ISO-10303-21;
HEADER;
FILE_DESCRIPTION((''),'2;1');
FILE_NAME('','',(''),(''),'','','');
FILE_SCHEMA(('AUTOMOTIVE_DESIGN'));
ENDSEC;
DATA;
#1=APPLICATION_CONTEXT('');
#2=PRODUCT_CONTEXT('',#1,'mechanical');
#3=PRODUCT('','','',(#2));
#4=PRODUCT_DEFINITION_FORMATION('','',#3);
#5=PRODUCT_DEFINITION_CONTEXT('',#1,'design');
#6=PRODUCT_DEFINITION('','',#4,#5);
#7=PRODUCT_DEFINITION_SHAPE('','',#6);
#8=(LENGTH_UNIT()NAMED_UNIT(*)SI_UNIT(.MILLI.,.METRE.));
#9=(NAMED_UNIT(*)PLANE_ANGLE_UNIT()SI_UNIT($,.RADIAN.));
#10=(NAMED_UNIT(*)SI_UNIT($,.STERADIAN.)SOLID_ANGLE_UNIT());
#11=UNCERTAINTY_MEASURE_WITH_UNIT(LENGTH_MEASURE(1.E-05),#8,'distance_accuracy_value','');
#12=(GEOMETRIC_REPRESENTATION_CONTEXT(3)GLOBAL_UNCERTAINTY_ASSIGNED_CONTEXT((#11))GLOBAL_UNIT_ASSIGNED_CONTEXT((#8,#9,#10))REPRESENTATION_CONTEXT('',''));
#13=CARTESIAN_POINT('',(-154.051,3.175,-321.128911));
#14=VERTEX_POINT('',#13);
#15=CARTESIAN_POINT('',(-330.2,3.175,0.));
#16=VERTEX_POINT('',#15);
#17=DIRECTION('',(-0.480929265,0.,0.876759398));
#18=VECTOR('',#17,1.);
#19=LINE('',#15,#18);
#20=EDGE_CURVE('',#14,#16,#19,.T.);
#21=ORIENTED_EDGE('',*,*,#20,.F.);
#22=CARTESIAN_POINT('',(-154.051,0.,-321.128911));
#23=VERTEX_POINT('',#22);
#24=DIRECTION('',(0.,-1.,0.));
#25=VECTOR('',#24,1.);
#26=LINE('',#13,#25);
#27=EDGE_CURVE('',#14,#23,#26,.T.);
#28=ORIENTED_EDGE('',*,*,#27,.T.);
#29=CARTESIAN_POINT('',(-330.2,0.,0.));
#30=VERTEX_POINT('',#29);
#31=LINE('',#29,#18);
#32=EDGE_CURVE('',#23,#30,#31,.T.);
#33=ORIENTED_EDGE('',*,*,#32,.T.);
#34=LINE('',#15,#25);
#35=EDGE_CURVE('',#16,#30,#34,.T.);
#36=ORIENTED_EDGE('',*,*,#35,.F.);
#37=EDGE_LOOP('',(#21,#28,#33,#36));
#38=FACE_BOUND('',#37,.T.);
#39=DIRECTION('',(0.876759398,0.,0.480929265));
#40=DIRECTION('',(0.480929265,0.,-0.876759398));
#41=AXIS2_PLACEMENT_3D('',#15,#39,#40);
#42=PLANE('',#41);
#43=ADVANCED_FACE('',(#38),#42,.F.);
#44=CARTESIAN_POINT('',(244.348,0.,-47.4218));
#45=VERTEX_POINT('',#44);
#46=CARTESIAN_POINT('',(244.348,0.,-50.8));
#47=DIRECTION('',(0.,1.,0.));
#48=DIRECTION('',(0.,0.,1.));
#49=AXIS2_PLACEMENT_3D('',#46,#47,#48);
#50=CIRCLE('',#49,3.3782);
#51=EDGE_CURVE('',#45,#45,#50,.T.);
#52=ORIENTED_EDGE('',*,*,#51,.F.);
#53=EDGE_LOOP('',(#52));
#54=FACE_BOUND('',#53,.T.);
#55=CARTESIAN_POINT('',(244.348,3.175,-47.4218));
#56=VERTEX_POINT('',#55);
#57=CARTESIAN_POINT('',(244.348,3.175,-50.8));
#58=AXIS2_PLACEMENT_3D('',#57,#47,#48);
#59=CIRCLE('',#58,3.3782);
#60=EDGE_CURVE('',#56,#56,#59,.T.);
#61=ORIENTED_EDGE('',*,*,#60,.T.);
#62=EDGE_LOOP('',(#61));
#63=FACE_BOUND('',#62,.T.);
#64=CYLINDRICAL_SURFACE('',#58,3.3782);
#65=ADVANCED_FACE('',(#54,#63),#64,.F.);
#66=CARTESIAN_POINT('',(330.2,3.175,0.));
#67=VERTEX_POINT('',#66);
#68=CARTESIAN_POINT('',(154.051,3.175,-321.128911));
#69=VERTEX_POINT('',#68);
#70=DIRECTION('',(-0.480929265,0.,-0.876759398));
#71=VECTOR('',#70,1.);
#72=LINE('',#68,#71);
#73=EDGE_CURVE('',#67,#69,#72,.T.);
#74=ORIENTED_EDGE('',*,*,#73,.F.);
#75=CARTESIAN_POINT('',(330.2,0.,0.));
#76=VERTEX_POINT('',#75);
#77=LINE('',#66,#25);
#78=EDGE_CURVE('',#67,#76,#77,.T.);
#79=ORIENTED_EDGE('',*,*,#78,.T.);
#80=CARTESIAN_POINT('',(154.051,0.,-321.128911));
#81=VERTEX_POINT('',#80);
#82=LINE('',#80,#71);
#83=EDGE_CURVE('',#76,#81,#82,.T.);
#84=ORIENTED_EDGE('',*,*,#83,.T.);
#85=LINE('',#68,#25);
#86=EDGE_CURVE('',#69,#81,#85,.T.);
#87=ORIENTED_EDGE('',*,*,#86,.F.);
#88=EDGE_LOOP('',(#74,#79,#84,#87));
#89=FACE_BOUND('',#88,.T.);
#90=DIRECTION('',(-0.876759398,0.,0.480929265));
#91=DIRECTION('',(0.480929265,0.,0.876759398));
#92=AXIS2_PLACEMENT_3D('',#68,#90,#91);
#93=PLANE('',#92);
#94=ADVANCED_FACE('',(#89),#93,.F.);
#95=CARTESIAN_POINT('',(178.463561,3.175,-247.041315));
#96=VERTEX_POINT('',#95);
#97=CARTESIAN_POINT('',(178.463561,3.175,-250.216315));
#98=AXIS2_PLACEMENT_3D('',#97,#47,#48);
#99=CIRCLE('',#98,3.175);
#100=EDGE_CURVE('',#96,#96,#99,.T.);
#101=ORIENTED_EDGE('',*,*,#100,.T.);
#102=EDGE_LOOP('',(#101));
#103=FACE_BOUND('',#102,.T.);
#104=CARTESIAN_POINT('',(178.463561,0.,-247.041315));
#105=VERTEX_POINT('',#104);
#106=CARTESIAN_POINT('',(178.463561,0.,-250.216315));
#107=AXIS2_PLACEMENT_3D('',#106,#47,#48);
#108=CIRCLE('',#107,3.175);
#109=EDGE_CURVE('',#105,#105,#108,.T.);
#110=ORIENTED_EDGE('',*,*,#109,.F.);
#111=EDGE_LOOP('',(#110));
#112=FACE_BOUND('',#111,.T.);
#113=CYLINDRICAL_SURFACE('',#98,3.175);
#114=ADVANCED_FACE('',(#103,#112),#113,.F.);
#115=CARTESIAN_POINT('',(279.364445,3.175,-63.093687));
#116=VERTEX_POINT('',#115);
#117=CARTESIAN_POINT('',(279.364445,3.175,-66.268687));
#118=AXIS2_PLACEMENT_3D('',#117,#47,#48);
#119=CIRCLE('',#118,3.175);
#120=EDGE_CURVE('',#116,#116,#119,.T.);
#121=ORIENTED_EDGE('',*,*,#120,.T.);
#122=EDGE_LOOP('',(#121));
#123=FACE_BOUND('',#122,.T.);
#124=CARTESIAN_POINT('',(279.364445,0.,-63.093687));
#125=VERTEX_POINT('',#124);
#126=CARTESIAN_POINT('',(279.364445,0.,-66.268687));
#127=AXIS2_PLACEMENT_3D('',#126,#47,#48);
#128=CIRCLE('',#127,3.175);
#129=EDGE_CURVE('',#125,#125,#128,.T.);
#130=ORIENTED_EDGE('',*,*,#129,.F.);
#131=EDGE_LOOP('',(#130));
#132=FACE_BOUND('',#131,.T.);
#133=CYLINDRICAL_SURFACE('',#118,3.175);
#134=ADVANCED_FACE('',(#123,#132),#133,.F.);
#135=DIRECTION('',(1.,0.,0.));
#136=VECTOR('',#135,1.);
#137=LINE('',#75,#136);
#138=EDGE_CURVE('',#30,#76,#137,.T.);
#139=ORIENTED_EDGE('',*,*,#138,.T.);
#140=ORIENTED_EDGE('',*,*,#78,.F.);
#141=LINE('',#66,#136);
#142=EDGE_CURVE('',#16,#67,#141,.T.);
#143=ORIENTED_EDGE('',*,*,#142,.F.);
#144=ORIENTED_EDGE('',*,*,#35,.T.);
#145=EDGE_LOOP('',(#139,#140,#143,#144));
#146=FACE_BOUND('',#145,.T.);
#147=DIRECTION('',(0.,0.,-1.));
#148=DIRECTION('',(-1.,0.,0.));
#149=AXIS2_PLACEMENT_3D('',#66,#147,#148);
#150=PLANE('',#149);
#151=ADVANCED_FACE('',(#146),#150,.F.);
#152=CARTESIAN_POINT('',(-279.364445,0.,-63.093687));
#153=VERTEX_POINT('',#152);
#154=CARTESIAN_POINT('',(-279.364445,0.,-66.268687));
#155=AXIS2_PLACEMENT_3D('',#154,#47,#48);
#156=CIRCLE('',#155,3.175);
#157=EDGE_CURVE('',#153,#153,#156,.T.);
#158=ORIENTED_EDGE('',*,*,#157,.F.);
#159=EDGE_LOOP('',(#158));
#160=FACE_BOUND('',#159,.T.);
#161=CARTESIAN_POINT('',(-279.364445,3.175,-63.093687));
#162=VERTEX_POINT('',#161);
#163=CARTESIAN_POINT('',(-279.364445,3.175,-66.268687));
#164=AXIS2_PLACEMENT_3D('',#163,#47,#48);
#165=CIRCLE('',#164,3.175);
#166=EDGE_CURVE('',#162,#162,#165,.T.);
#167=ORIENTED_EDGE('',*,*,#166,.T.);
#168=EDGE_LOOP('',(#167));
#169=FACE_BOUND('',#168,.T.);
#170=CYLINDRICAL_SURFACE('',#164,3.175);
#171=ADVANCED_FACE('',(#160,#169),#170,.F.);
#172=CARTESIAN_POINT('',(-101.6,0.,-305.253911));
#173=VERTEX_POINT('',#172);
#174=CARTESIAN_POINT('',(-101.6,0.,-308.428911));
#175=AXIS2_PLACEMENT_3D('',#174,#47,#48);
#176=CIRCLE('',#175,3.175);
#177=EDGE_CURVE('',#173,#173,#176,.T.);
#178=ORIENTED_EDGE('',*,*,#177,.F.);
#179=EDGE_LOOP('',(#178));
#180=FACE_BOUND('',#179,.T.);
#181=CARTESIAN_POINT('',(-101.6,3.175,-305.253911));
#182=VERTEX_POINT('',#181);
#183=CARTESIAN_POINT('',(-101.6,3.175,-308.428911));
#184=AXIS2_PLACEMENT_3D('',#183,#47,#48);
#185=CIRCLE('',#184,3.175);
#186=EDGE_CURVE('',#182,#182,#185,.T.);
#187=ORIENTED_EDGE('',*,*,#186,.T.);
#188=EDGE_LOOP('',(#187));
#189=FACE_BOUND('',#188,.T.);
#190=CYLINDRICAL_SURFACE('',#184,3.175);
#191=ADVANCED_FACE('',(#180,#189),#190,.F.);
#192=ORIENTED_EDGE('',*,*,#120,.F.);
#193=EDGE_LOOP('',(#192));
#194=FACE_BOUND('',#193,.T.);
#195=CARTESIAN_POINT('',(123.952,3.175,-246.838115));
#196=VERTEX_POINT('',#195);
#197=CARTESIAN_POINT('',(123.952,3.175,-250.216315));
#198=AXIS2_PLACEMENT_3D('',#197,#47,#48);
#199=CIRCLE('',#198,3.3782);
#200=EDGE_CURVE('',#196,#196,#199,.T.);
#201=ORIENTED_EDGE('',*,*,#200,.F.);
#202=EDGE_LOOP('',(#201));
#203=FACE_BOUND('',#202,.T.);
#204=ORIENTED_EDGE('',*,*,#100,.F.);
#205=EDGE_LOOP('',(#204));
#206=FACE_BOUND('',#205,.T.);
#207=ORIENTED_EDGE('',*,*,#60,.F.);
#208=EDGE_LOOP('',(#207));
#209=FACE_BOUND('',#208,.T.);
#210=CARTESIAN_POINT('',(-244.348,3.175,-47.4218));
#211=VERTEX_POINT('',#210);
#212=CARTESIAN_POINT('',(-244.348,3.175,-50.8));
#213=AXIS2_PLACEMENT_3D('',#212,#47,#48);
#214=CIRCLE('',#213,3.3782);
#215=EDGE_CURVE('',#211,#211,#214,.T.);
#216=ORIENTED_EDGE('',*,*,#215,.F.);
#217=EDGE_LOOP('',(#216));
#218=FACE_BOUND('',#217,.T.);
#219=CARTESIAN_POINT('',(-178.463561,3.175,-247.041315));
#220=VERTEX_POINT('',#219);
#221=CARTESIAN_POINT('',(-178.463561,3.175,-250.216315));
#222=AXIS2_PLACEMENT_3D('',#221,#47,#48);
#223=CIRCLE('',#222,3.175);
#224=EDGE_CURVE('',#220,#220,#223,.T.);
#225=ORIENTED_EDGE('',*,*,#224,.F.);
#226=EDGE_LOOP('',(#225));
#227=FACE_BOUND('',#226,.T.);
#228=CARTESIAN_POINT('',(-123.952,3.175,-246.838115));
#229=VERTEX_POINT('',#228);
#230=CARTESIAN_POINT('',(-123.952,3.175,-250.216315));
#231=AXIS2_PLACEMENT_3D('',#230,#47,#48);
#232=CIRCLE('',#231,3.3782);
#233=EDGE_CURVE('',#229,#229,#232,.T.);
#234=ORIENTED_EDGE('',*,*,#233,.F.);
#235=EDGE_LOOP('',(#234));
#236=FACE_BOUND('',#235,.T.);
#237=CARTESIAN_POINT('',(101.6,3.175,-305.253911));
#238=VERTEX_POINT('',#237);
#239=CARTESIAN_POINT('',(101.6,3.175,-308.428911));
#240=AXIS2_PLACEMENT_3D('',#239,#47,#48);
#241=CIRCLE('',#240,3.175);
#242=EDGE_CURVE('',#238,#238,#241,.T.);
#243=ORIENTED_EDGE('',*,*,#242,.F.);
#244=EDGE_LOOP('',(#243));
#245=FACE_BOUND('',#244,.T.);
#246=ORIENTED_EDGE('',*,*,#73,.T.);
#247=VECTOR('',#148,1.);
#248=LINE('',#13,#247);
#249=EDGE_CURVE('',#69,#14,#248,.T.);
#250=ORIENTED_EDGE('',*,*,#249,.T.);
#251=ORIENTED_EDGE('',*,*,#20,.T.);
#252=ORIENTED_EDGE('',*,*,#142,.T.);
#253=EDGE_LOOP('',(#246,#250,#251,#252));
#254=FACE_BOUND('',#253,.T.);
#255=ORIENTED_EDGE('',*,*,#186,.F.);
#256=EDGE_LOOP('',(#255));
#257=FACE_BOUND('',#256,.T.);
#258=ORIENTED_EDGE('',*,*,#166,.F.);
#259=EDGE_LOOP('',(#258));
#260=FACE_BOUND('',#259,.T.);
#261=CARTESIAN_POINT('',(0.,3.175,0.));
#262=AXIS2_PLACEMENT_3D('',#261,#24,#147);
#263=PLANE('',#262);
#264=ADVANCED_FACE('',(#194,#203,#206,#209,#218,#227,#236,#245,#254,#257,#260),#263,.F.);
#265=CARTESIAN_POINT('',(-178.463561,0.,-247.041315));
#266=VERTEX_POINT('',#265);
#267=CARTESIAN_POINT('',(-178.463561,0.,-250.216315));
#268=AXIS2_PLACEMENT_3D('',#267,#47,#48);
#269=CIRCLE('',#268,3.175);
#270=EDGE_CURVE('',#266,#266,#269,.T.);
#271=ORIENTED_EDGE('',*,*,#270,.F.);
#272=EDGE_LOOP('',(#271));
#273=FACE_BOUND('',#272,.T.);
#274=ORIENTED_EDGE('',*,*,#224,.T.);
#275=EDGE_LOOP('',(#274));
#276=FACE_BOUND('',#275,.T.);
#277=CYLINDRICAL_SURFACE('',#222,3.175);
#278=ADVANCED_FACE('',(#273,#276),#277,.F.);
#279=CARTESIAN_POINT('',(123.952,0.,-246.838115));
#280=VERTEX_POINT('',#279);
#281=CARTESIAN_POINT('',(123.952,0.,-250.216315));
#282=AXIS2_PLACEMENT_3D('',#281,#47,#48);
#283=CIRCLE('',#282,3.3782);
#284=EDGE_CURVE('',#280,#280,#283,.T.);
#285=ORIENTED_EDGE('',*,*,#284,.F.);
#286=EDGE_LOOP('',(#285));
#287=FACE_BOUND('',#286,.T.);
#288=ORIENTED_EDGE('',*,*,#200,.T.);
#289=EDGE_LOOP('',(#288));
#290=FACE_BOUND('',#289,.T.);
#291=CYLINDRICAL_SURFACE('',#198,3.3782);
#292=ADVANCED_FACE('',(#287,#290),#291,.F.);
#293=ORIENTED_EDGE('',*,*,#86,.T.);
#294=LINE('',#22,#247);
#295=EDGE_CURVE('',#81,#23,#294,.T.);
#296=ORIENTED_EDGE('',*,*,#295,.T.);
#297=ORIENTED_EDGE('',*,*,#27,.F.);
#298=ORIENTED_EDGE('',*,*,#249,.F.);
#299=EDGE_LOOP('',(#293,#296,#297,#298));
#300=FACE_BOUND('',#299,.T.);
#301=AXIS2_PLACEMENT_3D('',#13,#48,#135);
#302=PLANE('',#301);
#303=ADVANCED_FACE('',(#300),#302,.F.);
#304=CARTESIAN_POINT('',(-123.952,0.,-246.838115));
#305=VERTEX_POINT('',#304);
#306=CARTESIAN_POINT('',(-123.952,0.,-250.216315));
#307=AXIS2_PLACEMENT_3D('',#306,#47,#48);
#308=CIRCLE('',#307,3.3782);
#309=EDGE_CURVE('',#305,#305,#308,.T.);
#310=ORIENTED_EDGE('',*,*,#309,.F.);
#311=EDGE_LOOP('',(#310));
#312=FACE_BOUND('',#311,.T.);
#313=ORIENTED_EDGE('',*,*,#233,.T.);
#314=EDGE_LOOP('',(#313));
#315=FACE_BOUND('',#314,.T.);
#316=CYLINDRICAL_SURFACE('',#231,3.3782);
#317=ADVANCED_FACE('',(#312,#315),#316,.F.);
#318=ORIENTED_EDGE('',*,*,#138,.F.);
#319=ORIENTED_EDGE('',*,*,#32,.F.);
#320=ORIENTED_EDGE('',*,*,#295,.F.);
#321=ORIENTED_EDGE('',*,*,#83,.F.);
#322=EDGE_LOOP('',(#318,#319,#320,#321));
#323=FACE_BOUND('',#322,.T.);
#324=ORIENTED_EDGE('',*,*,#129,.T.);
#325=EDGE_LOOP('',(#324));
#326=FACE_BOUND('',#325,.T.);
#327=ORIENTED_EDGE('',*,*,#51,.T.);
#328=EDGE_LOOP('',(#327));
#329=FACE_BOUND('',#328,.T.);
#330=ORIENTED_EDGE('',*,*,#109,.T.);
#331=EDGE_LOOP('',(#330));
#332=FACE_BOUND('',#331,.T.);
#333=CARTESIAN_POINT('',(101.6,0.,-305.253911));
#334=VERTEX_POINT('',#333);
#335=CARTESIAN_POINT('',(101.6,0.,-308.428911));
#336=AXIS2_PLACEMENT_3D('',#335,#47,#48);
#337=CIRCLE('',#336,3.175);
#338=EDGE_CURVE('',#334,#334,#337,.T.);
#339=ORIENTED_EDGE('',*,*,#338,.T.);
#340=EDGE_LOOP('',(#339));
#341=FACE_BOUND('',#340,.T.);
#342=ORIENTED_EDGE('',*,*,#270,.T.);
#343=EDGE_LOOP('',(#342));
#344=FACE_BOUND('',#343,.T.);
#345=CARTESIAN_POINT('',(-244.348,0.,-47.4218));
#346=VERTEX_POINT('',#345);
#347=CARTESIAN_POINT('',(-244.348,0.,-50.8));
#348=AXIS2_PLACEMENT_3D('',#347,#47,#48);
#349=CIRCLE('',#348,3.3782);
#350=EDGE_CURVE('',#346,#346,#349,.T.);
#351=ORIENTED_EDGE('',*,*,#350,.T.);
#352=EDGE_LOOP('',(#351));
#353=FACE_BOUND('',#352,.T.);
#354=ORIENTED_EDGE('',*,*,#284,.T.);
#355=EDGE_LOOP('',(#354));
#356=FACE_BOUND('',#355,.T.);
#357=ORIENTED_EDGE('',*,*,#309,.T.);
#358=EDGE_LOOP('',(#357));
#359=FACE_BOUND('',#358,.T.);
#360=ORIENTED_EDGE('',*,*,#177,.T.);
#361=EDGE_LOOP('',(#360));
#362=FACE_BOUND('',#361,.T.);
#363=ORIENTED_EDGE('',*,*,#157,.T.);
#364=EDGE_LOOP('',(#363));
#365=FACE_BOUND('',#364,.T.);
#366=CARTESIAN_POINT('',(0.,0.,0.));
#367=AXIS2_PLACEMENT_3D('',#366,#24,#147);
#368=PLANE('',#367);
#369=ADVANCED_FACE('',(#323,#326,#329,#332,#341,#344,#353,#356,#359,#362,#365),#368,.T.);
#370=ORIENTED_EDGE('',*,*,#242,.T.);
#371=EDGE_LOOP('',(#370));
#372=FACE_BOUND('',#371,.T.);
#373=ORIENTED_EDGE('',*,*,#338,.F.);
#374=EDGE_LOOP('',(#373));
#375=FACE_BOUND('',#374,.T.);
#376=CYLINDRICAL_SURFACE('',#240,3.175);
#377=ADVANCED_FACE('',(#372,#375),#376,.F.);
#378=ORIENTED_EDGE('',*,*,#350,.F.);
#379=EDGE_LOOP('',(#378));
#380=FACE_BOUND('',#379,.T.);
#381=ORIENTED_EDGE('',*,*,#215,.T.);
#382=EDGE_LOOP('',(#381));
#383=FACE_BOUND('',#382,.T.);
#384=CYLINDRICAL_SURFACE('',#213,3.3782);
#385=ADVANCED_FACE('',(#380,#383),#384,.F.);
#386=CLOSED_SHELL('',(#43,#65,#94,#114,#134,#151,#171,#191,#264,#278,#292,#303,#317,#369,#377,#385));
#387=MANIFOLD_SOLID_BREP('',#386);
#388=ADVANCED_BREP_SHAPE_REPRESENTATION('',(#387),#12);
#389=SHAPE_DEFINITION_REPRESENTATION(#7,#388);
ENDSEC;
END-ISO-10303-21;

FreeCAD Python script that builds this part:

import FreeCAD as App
import Part
import Sketcher

V = App.Vector
Q = App.Units.Quantity


def add_polygon(sketch, points):
    """Adds a closed chain of lines whose ends are joined by coincident constraints."""
    first, n = sketch.GeometryCount, len(points)
    for a, b in zip(points, points[1:] + points[:1]):
        sketch.addGeometry(Part.LineSegment(App.Vector(*a, 0), App.Vector(*b, 0)), False)
    for i in range(n):
        sketch.addConstraint(Sketcher.Constraint("Coincident", first + i, 2, first + (i + 1) % n, 1))

doc = App.newDocument("Part")
body = doc.addObject("PartDesign::Body", "Body")

sketch1 = body.newObject("Sketcher::SketchObject", "Sketch")
sketch1.AttachmentSupport = (doc.getObject("XZ_Plane"), [""])
sketch1.MapMode = "FlatFace"
add_polygon(sketch1, [(-154, -321), (-330, 0), (330, 0), (154, -321)])
sketch1.addConstraint(Sketcher.Constraint("Horizontal", 1))
sketch1.addConstraint(Sketcher.Constraint("Horizontal", 3))
sketch1.addConstraint(Sketcher.Constraint("Symmetric", 0, 2, 1, 2, -1, 1))
sketch1.addConstraint(Sketcher.Constraint("Equal", 0, 2))
sketch1.addConstraint(Sketcher.Constraint("DistanceX", 1, 1, 1, 2, Q("26 in")))
sketch1.addConstraint(Sketcher.Constraint("DistanceX", 3, 2, 3, 1, Q("12.13 in")))
sketch1.addConstraint(Sketcher.Constraint("Distance", 0, Q("14.42 in")))
pad1 = body.newObject("PartDesign::Pad", "Pad")
pad1.Profile = sketch1
pad1.Length = Q("0.125 in")
pad1.Reversed = True

sketch2 = body.newObject("Sketcher::SketchObject", "Sketch001")
sketch2.AttachmentSupport = (doc.getObject("XZ_Plane"), [""])
sketch2.MapMode = "FlatFace"
sketch2.AttachmentOffset = App.Placement(V(0, 0, -0.125 * 25.4), App.Rotation())
sketch2.addGeometry(Part.Circle(V(-279.4, -66.3, 0), V(0, 0, 1), 3.2), False)
sketch2.addGeometry(Part.Circle(V(-178.5, -250.2, 0), V(0, 0, 1), 3.2), False)
sketch2.addGeometry(Part.Circle(V(-101.6, -308.4, 0), V(0, 0, 1), 3.2), False)
sketch2.addGeometry(Part.Circle(V(279.4, -66.3, 0), V(0, 0, 1), 3.2), False)
sketch2.addGeometry(Part.Circle(V(178.5, -250.2, 0), V(0, 0, 1), 3.2), False)
sketch2.addGeometry(Part.Circle(V(101.6, -308.4, 0), V(0, 0, 1), 3.2), False)
sketch2.addConstraint(Sketcher.Constraint("Equal", 0, 1))
sketch2.addConstraint(Sketcher.Constraint("Equal", 1, 2))
sketch2.addConstraint(Sketcher.Constraint("Equal", 2, 3))
sketch2.addConstraint(Sketcher.Constraint("Equal", 3, 4))
sketch2.addConstraint(Sketcher.Constraint("Equal", 4, 5))
sketch2.addConstraint(Sketcher.Constraint("Symmetric", 0, 3, 3, 3, -2))
sketch2.addConstraint(Sketcher.Constraint("Symmetric", 1, 3, 4, 3, -2))
sketch2.addConstraint(Sketcher.Constraint("Symmetric", 2, 3, 5, 3, -2))
sketch2.addConstraint(Sketcher.Constraint("Diameter", 0, Q("0.25 in")))
sketch2.addConstraint(Sketcher.Constraint("DistanceX", 2, 3, -1, 1, Q("4 in")))
sketch2.addConstraint(Sketcher.Constraint("DistanceX", 0, 3, -1, 1, Q("10.9986002 in")))
sketch2.addConstraint(Sketcher.Constraint("DistanceX", 1, 3, -1, 1, Q("178.463561 mm")))
sketch2.addConstraint(Sketcher.Constraint("DistanceY", 2, 3, -1, 1, Q("308.428911 mm")))
sketch2.addConstraint(Sketcher.Constraint("DistanceY", 1, 3, 0, 3, Q("183.947629 mm")))
sketch2.addConstraint(Sketcher.Constraint("DistanceY", 0, 3, -1, 1, Q("66.268687 mm")))
doc.recompute()
hole = body.newObject("PartDesign::Hole", "Hole")
hole.Profile = sketch2
hole.ThreadType = "None"
hole.Diameter = Q("0.25 in")
hole.DepthType = "ThroughAll"
hole.Reversed = True

sketch3 = body.newObject("Sketcher::SketchObject", "Sketch002")
sketch3.AttachmentSupport = (doc.getObject("XZ_Plane"), [""])
sketch3.MapMode = "FlatFace"
sketch3.AttachmentOffset = App.Placement(V(0, 0, -0.125 * 25.4), App.Rotation())
sketch3.addGeometry(Part.Circle(V(-124, -250.2, 0), V(0, 0, 1), 3.4), False)
sketch3.addGeometry(Part.Circle(V(-244.3, -50.8, 0), V(0, 0, 1), 3.4), False)
sketch3.addGeometry(Part.Circle(V(244.3, -50.8, 0), V(0, 0, 1), 3.4), False)
sketch3.addGeometry(Part.Circle(V(124, -250.2, 0), V(0, 0, 1), 3.4), False)
sketch3.addConstraint(Sketcher.Constraint("Equal", 0, 1))
sketch3.addConstraint(Sketcher.Constraint("Equal", 1, 2))
sketch3.addConstraint(Sketcher.Constraint("Equal", 2, 3))
sketch3.addConstraint(Sketcher.Constraint("Symmetric", 1, 3, 2, 3, -2))
sketch3.addConstraint(Sketcher.Constraint("Symmetric", 0, 3, 3, 3, -2))
sketch3.addConstraint(Sketcher.Constraint("Diameter", 0, Q("0.266 in")))
sketch3.addConstraint(Sketcher.Constraint("DistanceY", 1, 3, -1, 1, Q("2 in")))
sketch3.addConstraint(Sketcher.Constraint("DistanceX", 0, 3, 2, 3, Q("14.5 in")))
sketch3.addConstraint(Sketcher.Constraint("DistanceX", 0, 3, -1, 1, Q("4.88 in")))
sketch3.addConstraint(Sketcher.Constraint("DistanceY", 0, 3, -1, 1, Q("250.216315 mm")))
doc.recompute()
hole2 = body.newObject("PartDesign::Hole", "Hole001")
hole2.Profile = sketch3
hole2.ThreadType = "None"
hole2.Diameter = Q("0.266 in")
hole2.DepthType = "ThroughAll"
hole2.Reversed = True

doc.recompute()
